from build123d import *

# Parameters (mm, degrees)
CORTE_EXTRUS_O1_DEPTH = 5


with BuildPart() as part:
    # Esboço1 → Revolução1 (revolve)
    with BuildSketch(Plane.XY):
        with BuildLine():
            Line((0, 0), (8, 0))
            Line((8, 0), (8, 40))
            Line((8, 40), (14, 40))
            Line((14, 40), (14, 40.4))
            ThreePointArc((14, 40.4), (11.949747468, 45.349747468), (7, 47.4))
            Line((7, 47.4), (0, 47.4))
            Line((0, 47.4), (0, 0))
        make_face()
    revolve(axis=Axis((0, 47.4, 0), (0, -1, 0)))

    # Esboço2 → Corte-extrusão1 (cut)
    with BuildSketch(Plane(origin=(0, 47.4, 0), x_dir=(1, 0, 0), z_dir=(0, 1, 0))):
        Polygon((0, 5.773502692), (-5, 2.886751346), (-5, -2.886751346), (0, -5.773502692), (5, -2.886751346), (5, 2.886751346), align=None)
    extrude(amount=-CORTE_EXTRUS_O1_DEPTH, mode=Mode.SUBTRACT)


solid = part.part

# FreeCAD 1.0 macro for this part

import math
import FreeCAD as App
import Part
import Sketcher

V = App.Vector
Q = App.Units.Quantity

doc = App.newDocument("Part")
body = doc.addObject("PartDesign::Body", "Body")

# Sketch on XY plane
sketch1 = doc.addObject("Sketcher::SketchObject", "Sketch")
body.addObject(sketch1)
sketch1.AttachmentSupport = (doc.XY_Plane, [""])
sketch1.MapMode = "FlatFace"
sketch1.addGeometry([
    Part.LineSegment(V(0, 0, 0), V(8, 0, 0)),  # 0
    Part.LineSegment(V(8, 0, 0), V(8, 40, 0)),  # 1
    Part.LineSegment(V(8, 40, 0), V(14, 40, 0)),  # 2
    Part.LineSegment(V(14, 40, 0), V(14, 40.4, 0)),  # 3
    Part.ArcOfCircle(Part.Circle(V(7, 40.4, 0), V(0, 0, 1), 7), math.radians(0), math.radians(90)),  # 4
    Part.LineSegment(V(7, 47.4, 0), V(0, 47.4, 0)),  # 5
    Part.LineSegment(V(0, 47.4, 0), V(0, 0, 0)),  # 6
], False)
sketch1.addConstraint([
    Sketcher.Constraint("Coincident", 0, 2, 1, 1),
    Sketcher.Constraint("Coincident", 1, 2, 2, 1),
    Sketcher.Constraint("Coincident", 2, 2, 3, 1),
    Sketcher.Constraint("Tangent", 3, 2, 4, 1),
    Sketcher.Constraint("Tangent", 4, 2, 5, 1),
    Sketcher.Constraint("Coincident", 5, 2, 6, 1),
    Sketcher.Constraint("Coincident", 6, 2, 0, 1),
    Sketcher.Constraint("Horizontal", 0),
    Sketcher.Constraint("Vertical", 1),
    Sketcher.Constraint("Horizontal", 2),
    Sketcher.Constraint("Vertical", 3),
    Sketcher.Constraint("Horizontal", 5),
    Sketcher.Constraint("Vertical", 6),
    Sketcher.Constraint("Coincident", 6, 2, -1, 1),
    Sketcher.Constraint("Radius", 4, Q("7 mm")),
    Sketcher.Constraint("DistanceX", 0, 1, 0, 2, Q("8 mm")),
    Sketcher.Constraint("DistanceX", 2, 1, 2, 2, Q("6 mm")),
    Sketcher.Constraint("DistanceY", 1, 1, 1, 2, Q("40 mm")),
    Sketcher.Constraint("DistanceY", 3, 1, 3, 2, Q("0.4 mm")),
])
revolution = doc.addObject("PartDesign::Revolution", "Revolution")
body.addObject(revolution)
revolution.Profile = sketch1
revolution.ReferenceAxis = (sketch1, ["V_Axis"])
revolution.Angle = 360

# Sketch on XZ plane
sketch2 = doc.addObject("Sketcher::SketchObject", "Sketch001")
body.addObject(sketch2)
sketch2.AttachmentSupport = (doc.XZ_Plane, [""])
sketch2.MapMode = "FlatFace"
sketch2.AttachmentOffset = App.Placement(V(0, 0, -47.4), App.Rotation())
sketch2.addGeometry([
    Part.LineSegment(V(0, -6, 0), V(-5, -3, 0)),  # 0
    Part.LineSegment(V(-5, -3, 0), V(-5, 3, 0)),  # 1
    Part.LineSegment(V(-5, 3, 0), V(0, 6, 0)),  # 2
    Part.LineSegment(V(0, 6, 0), V(5, 3, 0)),  # 3
    Part.LineSegment(V(5, 3, 0), V(5, -3, 0)),  # 4
    Part.LineSegment(V(5, -3, 0), V(0, -6, 0)),  # 5
], False)
sketch2.addConstraint([
    Sketcher.Constraint("Coincident", 0, 2, 1, 1),
    Sketcher.Constraint("Coincident", 1, 2, 2, 1),
    Sketcher.Constraint("Coincident", 2, 2, 3, 1),
    Sketcher.Constraint("Coincident", 3, 2, 4, 1),
    Sketcher.Constraint("Coincident", 4, 2, 5, 1),
    Sketcher.Constraint("Coincident", 5, 2, 0, 1),
    Sketcher.Constraint("Vertical", 1),
    Sketcher.Constraint("Vertical", 4),
    Sketcher.Constraint("Symmetric", 0, 2, 3, 2, -1, 1),
    Sketcher.Constraint("Symmetric", 2, 2, 5, 2, -1, 1),
    Sketcher.Constraint("PointOnObject", 2, 2, -2),
    Sketcher.Constraint("Parallel", 2, 5),
    Sketcher.Constraint("Horizontal", 1, 2, 3, 2),
    Sketcher.Constraint("Angle", 0, Q("150 deg")),
    Sketcher.Constraint("DistanceX", 0, 2, -1, 1, Q("5 mm")),
    Sketcher.Constraint("DistanceY", 1, 1, 1, 2, Q("5.773503 mm")),
])
pocket1 = doc.addObject("PartDesign::Pocket", "Pocket")
body.addObject(pocket1)
pocket1.Profile = sketch2
pocket1.Length = 5
pocket1.Reversed = True

doc.recompute()
